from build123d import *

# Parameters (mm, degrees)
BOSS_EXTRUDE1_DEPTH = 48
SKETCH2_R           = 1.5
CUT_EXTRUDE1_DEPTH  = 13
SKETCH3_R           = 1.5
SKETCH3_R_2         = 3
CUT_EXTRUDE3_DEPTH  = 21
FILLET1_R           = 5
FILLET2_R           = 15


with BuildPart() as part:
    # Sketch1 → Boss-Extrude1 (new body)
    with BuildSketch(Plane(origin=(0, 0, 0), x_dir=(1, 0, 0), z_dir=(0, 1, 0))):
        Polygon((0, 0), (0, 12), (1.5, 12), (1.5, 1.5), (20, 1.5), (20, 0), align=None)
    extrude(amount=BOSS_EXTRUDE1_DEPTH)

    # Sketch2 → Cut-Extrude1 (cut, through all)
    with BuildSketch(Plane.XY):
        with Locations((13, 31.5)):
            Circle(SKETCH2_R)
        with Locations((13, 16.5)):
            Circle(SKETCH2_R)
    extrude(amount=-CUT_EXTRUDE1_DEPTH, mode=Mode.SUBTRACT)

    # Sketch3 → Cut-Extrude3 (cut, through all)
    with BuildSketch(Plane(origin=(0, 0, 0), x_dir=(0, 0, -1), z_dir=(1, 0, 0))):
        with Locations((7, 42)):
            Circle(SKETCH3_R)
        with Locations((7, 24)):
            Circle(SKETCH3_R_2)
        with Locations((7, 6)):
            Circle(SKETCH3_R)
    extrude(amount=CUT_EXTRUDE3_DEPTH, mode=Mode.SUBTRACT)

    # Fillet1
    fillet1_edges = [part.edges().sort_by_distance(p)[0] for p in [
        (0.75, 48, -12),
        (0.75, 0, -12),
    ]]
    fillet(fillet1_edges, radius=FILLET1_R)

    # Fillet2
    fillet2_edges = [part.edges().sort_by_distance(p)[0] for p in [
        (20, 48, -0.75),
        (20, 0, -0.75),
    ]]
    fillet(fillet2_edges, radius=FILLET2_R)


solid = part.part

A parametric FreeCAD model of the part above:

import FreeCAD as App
import Part
import Sketcher


def edges_at(feature, points):
    """Names of the edges that pass closest to the given points."""
    edges = feature.Shape.Edges
    near = lambda p: min(range(len(edges)), key=lambda i: edges[i].distToShape(Part.Vertex(*p))[0])
    return sorted({f"Edge{near(p) + 1}" for p in points})


def add_polygon(sketch, points):
    """Adds a closed chain of lines whose ends are joined by coincident constraints."""
    first, n = sketch.GeometryCount, len(points)
    for a, b in zip(points, points[1:] + points[:1]):
        sketch.addGeometry(Part.LineSegment(App.Vector(*a, 0), App.Vector(*b, 0)), False)
    for i in range(n):
        sketch.addConstraint(Sketcher.Constraint("Coincident", first + i, 2, first + (i + 1) % n, 1))

doc = App.newDocument("Part")
body = doc.addObject("PartDesign::Body", "Body")

# Sketch on XZ plane
sketch1 = body.newObject("Sketcher::SketchObject", "Sketch")
sketch1.AttachmentSupport = (doc.getObject("XZ_Plane"), [""])
sketch1.MapMode = "FlatFace"
add_polygon(sketch1, [(0, -12), (0, 0), (20, 0), (20, -1.5), (1.5, -1.5), (1.5, -12)])  # lines 0-5
sketch1.addConstraint([
    Sketcher.Constraint("Vertical", 0),
    Sketcher.Constraint("Horizontal", 1),
    Sketcher.Constraint("Vertical", 2),
    Sketcher.Constraint("Horizontal", 3),
    Sketcher.Constraint("Vertical", 4),
    Sketcher.Constraint("Horizontal", 5),
    Sketcher.Constraint("Coincident", 0, 2, -1, 1),
    Sketcher.Constraint("Equal", 5, 2),
    Sketcher.Constraint("DistanceX", 1, 1, 1, 2, 20.0),
    Sketcher.Constraint("DistanceY", 0, 1, 0, 2, 12.0),
    Sketcher.Constraint("DistanceX", 3, 2, 3, 1, 18.5),
])
pad1 = body.newObject("PartDesign::Pad", "Pad")
pad1.Profile = sketch1
pad1.Length = 48
pad1.Reversed = True

# Sketch on XY plane
sketch2 = body.newObject("Sketcher::SketchObject", "Sketch001")
sketch2.AttachmentSupport = (doc.getObject("XY_Plane"), [""])
sketch2.MapMode = "FlatFace"
sketch2.addGeometry([
    Part.Circle(App.Vector(13, 31.5, 0), App.Vector(0, 0, 1), 1.5),
    Part.Circle(App.Vector(13, 16.5, 0), App.Vector(0, 0, 1), 1.5),
], False)
sketch2.addConstraint([
    Sketcher.Constraint("Equal", 0, 1),
    Sketcher.Constraint("Vertical", 0, 3, 1, 3),
    Sketcher.Constraint("Diameter", 0, 3.0),
    Sketcher.Constraint("DistanceX", -1, 1, 0, 3, 13.0),
    Sketcher.Constraint("DistanceY", 1, 3, 0, 3, 15.0),
    Sketcher.Constraint("DistanceY", -1, 1, 0, 3, 31.5),
])
pocket1 = body.newObject("PartDesign::Pocket", "Pocket")
pocket1.Profile = sketch2
pocket1.Type = "ThroughAll"

# Sketch on YZ plane
sketch3 = body.newObject("Sketcher::SketchObject", "Sketch002")
sketch3.AttachmentSupport = (doc.getObject("YZ_Plane"), [""])
sketch3.MapMode = "FlatFace"
sketch3.addGeometry([
    Part.Circle(App.Vector(42, -7, 0), App.Vector(0, 0, 1), 1.5),
    Part.Circle(App.Vector(24, -7, 0), App.Vector(0, 0, 1), 3),
    Part.Circle(App.Vector(6, -7, 0), App.Vector(0, 0, 1), 1.5),
], False)
sketch3.addConstraint([
    Sketcher.Constraint("Equal", 0, 2),
    Sketcher.Constraint("Horizontal", 0, 3, 1, 3),
    Sketcher.Constraint("Horizontal", 1, 3, 2, 3),
    Sketcher.Constraint("Diameter", 0, 3.0),
    Sketcher.Constraint("Diameter", 1, 6.0),
    Sketcher.Constraint("DistanceX", -1, 1, 0, 3, 42.0),
    Sketcher.Constraint("DistanceY", 0, 3, -1, 1, 7.0),
    Sketcher.Constraint("DistanceX", -1, 1, 1, 3, 24.0),
    Sketcher.Constraint("DistanceX", -1, 1, 2, 3, 6.0),
])
pocket2 = body.newObject("PartDesign::Pocket", "Pocket001")
pocket2.Profile = sketch3
pocket2.Type = "ThroughAll"
pocket2.Reversed = True
doc.recompute()

fillet = body.newObject("PartDesign::Fillet", "Fillet")
fillet.Base = (pocket2, edges_at(pocket2, [(0.75, 48, -12), (0.75, 0, -12)]))
fillet.Radius = 5
doc.recompute()

fillet2 = body.newObject("PartDesign::Fillet", "Fillet001")
fillet2.Base = (fillet, edges_at(fillet, [(20, 48, -0.75), (20, 0, -0.75)]))
fillet2.Radius = 15

doc.recompute()
